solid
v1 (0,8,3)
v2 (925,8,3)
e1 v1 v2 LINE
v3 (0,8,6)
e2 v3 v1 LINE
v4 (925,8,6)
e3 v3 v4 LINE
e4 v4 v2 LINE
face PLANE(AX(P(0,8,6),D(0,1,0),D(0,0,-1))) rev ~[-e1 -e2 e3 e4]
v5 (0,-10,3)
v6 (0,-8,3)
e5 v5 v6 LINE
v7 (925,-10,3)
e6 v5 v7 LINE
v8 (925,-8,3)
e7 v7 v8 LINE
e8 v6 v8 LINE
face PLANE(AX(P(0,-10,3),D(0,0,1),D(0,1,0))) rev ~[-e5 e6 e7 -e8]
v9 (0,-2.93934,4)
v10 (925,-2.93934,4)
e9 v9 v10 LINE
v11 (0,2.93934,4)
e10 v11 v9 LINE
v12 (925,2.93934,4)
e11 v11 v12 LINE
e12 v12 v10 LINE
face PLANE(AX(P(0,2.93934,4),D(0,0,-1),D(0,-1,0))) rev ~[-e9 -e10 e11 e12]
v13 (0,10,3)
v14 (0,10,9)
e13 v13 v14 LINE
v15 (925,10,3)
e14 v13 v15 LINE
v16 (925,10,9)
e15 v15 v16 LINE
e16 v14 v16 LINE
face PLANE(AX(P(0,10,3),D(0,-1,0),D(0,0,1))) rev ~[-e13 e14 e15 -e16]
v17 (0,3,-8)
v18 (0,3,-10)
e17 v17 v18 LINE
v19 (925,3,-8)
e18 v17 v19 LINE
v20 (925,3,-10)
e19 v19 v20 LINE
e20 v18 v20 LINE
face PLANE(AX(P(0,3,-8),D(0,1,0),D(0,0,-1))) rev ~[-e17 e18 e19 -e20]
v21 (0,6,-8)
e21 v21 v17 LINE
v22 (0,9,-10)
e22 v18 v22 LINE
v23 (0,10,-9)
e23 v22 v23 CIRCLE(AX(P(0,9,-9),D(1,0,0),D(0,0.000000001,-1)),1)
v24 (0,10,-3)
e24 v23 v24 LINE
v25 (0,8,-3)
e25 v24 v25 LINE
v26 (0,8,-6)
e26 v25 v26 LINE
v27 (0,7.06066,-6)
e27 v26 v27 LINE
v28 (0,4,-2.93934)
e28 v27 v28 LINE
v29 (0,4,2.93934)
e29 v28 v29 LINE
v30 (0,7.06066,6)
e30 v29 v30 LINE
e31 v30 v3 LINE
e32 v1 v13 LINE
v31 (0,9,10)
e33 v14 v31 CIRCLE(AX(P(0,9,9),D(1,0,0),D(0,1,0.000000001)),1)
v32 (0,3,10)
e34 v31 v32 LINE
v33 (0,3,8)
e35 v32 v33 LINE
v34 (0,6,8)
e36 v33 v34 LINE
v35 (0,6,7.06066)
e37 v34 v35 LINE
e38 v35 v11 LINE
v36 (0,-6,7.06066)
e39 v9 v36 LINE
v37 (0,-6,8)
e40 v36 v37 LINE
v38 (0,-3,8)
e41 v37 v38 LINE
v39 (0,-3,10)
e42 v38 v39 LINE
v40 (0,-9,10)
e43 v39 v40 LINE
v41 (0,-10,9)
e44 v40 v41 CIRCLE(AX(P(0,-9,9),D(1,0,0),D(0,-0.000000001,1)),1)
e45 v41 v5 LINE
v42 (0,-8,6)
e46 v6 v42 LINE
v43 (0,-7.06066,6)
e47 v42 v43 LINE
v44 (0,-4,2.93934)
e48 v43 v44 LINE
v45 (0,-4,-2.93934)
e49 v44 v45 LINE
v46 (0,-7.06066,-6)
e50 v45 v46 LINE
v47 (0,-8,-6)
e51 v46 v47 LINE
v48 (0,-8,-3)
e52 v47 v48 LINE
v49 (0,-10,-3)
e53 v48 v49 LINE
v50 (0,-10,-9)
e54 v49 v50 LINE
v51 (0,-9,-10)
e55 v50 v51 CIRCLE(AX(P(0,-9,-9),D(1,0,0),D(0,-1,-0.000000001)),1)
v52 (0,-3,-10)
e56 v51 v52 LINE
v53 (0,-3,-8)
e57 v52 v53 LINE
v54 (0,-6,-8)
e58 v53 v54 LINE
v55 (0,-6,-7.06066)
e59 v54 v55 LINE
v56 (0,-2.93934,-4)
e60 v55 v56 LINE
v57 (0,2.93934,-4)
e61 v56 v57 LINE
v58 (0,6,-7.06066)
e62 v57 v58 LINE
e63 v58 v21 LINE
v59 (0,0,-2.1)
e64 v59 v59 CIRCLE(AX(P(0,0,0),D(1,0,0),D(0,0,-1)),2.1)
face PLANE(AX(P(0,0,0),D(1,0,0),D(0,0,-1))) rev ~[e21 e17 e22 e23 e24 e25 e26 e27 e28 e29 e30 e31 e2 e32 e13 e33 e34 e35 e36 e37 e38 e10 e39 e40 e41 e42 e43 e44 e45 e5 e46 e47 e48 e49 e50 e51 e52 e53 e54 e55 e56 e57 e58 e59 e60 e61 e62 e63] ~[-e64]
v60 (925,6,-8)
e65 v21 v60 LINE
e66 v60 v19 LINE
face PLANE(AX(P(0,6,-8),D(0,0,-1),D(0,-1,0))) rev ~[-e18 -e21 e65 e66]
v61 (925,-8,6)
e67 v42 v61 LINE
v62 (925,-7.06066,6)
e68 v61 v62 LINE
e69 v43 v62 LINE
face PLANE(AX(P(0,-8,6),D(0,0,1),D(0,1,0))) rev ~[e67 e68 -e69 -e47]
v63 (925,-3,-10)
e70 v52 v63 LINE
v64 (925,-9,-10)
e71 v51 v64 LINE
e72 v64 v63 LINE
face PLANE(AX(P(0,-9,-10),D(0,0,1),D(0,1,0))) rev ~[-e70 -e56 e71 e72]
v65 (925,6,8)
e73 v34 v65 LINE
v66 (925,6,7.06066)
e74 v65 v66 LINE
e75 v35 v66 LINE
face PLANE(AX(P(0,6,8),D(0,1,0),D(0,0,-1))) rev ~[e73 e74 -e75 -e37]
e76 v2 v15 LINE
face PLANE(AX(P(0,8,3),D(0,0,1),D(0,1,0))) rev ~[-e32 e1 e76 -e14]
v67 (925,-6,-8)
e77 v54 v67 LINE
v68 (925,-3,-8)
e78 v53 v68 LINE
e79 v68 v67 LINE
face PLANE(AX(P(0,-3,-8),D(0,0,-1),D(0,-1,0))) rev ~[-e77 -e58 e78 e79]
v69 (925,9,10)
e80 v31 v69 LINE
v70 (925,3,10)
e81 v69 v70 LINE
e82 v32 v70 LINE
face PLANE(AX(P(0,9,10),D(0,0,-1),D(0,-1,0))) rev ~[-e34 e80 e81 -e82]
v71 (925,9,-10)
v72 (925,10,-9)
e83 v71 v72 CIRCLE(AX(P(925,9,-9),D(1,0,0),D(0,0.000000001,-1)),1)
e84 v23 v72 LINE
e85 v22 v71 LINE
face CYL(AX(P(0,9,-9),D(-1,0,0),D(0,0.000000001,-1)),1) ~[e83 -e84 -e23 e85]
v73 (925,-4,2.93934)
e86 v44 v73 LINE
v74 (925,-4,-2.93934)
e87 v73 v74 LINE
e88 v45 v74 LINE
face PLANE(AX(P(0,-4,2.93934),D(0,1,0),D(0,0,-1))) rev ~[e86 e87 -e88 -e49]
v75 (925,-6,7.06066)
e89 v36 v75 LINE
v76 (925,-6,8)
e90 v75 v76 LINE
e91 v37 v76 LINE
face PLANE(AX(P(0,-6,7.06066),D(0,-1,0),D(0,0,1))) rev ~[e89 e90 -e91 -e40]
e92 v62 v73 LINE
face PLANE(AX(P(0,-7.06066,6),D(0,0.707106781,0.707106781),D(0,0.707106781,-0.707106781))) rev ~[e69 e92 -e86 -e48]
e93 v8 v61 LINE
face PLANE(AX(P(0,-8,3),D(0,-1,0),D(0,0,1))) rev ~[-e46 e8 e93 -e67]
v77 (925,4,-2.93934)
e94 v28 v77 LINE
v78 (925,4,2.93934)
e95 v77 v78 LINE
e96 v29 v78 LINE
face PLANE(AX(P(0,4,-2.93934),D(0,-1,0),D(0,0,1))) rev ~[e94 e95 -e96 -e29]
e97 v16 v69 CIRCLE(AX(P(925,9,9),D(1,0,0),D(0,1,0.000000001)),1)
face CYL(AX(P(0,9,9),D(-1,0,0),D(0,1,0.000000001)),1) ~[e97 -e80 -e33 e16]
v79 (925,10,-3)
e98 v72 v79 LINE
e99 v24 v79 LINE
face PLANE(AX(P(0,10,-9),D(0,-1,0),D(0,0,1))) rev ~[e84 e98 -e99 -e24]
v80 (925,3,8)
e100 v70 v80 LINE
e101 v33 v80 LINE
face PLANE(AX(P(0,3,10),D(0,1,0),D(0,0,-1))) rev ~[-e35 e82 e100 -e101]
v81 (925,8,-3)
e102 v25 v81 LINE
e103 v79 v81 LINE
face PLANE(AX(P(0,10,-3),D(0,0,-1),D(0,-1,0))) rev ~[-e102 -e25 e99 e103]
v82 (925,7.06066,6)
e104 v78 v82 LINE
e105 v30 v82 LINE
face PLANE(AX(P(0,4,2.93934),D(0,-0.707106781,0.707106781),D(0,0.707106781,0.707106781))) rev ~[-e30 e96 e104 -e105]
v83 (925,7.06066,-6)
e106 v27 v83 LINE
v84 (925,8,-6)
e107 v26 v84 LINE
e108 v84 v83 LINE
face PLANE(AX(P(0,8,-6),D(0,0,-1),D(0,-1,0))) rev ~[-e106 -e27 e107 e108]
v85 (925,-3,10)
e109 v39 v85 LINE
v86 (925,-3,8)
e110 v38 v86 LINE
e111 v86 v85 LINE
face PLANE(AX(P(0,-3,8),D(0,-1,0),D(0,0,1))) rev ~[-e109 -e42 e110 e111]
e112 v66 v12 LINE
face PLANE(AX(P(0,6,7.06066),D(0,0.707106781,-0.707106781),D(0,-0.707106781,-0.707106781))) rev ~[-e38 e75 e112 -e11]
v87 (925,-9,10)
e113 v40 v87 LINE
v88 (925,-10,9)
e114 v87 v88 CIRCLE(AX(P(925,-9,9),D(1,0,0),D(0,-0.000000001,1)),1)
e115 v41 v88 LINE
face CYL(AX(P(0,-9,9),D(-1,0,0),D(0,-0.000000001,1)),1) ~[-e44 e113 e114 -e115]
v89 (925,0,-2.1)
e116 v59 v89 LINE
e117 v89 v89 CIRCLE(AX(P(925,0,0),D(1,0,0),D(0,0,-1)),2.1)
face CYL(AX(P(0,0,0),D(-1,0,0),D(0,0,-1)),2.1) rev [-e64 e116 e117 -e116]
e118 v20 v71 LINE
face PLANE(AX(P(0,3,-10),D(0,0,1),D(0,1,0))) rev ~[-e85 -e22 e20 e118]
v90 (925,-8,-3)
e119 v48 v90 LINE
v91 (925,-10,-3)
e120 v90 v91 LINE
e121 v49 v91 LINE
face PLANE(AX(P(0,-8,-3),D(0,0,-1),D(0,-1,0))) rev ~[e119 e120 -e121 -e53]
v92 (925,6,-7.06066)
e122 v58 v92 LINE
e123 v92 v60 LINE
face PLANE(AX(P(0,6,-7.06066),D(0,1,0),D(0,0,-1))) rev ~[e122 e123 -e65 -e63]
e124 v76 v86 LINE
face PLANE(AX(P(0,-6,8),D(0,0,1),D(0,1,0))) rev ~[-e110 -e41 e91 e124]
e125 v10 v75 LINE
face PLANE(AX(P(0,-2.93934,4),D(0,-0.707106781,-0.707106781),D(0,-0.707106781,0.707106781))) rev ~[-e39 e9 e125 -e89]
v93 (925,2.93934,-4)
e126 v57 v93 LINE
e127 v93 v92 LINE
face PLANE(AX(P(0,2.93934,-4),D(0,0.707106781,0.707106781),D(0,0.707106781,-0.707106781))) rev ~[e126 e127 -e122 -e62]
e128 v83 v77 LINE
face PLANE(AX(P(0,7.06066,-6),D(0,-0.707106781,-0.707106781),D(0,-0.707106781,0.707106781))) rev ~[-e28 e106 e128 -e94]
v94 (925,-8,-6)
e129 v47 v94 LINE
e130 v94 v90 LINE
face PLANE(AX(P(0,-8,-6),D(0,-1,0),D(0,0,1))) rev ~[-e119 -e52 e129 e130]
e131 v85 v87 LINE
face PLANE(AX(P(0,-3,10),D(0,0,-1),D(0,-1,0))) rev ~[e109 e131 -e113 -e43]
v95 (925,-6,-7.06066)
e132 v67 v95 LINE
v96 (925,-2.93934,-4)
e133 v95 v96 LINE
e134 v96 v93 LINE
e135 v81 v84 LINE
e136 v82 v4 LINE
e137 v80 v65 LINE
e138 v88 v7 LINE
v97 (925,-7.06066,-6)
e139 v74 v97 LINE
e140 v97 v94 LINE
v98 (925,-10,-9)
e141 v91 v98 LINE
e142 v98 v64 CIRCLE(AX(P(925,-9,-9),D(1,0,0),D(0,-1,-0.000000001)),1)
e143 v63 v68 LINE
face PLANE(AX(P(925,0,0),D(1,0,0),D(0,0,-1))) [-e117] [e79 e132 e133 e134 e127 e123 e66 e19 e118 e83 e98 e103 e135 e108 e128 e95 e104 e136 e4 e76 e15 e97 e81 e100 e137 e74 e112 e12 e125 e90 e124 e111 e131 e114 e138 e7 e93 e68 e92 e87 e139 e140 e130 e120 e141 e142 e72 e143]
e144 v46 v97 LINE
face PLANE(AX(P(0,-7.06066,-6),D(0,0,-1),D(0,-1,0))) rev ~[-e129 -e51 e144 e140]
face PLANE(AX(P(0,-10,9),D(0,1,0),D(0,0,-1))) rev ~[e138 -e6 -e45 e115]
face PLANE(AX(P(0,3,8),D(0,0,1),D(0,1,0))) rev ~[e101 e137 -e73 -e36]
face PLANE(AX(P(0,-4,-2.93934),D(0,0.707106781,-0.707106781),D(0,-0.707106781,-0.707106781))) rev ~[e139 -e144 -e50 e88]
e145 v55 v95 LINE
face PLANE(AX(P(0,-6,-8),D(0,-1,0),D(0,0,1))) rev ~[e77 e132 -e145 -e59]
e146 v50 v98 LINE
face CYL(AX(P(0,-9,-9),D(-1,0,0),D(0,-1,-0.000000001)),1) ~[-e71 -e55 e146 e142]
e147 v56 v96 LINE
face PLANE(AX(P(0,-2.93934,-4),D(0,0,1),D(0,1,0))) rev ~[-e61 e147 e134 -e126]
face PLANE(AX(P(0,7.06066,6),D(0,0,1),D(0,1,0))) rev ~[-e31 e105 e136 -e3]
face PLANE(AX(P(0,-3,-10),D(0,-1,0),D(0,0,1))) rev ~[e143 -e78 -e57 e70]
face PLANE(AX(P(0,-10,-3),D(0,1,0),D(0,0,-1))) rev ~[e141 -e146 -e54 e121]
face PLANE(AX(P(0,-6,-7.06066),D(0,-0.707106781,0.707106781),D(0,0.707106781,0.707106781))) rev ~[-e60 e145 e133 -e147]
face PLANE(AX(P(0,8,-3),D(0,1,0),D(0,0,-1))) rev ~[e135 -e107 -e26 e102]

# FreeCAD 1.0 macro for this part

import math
import FreeCAD as App
import Part
import Sketcher

V = App.Vector
Q = App.Units.Quantity

doc = App.newDocument("Part")
params = doc.addObject("Spreadsheet::Sheet", "Params")
for row, (alias, value) in enumerate([
    ("sketch1_radius", "1 mm"),
    ("sketch1_diameter", "4.2 mm"),
    ("sketch1_width", "6 mm"),
    ("sketch1_width2", "3 mm"),
    ("sketch1_width3", "2 mm"),
    ("pad1_length", "925 mm"),
], start=1):
    params.set(f"A{row}", alias)
    params.set(f"B{row}", "=" + value)
    params.setAlias(f"B{row}", alias)

body = doc.addObject("PartDesign::Body", "Body")

sketch1 = doc.addObject("Sketcher::SketchObject", "Sketch")
body.addObject(sketch1)
sketch1.AttachmentSupport = (doc.YZ_Plane, [""])
sketch1.MapMode = "FlatFace"
sketch1.addGeometry(Part.LineSegment(V(9, 10, 0), V(3, 10, 0)), False)
sketch1.addGeometry(Part.LineSegment(V(3, 10, 0), V(3, 8, 0)), False)
sketch1.addGeometry(Part.LineSegment(V(3, 8, 0), V(6, 8, 0)), False)
sketch1.addGeometry(Part.LineSegment(V(6, 8, 0), V(6, 7.1, 0)), False)
sketch1.addGeometry(Part.LineSegment(V(6, 7.1, 0), V(2.9, 4, 0)), False)
sketch1.addGeometry(Part.LineSegment(V(2.9, 4, 0), V(-2.9, 4, 0)), False)
sketch1.addGeometry(Part.LineSegment(V(-2.9, 4, 0), V(-6, 7.1, 0)), False)
sketch1.addGeometry(Part.LineSegment(V(-6, 7.1, 0), V(-6, 8, 0)), False)
sketch1.addGeometry(Part.LineSegment(V(-6, 8, 0), V(-3, 8, 0)), False)
sketch1.addGeometry(Part.LineSegment(V(-3, 8, 0), V(-3, 10, 0)), False)
sketch1.addGeometry(Part.LineSegment(V(-3, 10, 0), V(-9, 10, 0)), False)
sketch1.addGeometry(Part.ArcOfCircle(Part.Circle(V(-9, 9, 0), V(0, 0, 1), 1), math.radians(90), math.radians(180)), False)
sketch1.addGeometry(Part.LineSegment(V(-10, 9, 0), V(-10, 3, 0)), False)
sketch1.addGeometry(Part.LineSegment(V(-10, 3, 0), V(-8, 3, 0)), False)
sketch1.addGeometry(Part.LineSegment(V(-8, 3, 0), V(-8, 6, 0)), False)
sketch1.addGeometry(Part.LineSegment(V(-8, 6, 0), V(-7.1, 6, 0)), False)
sketch1.addGeometry(Part.LineSegment(V(-7.1, 6, 0), V(-4, 2.9, 0)), False)
sketch1.addGeometry(Part.LineSegment(V(-4, 2.9, 0), V(-4, -2.9, 0)), False)
sketch1.addGeometry(Part.LineSegment(V(-4, -2.9, 0), V(-7.1, -6, 0)), False)
sketch1.addGeometry(Part.LineSegment(V(-7.1, -6, 0), V(-8, -6, 0)), False)
sketch1.addGeometry(Part.LineSegment(V(-8, -6, 0), V(-8, -3, 0)), False)
sketch1.addGeometry(Part.LineSegment(V(-8, -3, 0), V(-10, -3, 0)), False)
sketch1.addGeometry(Part.LineSegment(V(-10, -3, 0), V(-10, -9, 0)), False)
sketch1.addGeometry(Part.ArcOfCircle(Part.Circle(V(-9, -9, 0), V(0, 0, 1), 1), math.radians(-180), math.radians(-90)), False)
sketch1.addGeometry(Part.LineSegment(V(-9, -10, 0), V(-3, -10, 0)), False)
sketch1.addGeometry(Part.LineSegment(V(-3, -10, 0), V(-3, -8, 0)), False)
sketch1.addGeometry(Part.LineSegment(V(-3, -8, 0), V(-6, -8, 0)), False)
sketch1.addGeometry(Part.LineSegment(V(-6, -8, 0), V(-6, -7.1, 0)), False)
sketch1.addGeometry(Part.LineSegment(V(-6, -7.1, 0), V(-2.9, -4, 0)), False)
sketch1.addGeometry(Part.LineSegment(V(-2.9, -4, 0), V(2.9, -4, 0)), False)
sketch1.addGeometry(Part.LineSegment(V(2.9, -4, 0), V(6, -7.1, 0)), False)
sketch1.addGeometry(Part.LineSegment(V(6, -7.1, 0), V(6, -8, 0)), False)
sketch1.addGeometry(Part.LineSegment(V(6, -8, 0), V(3, -8, 0)), False)
sketch1.addGeometry(Part.LineSegment(V(3, -8, 0), V(3, -10, 0)), False)
sketch1.addGeometry(Part.LineSegment(V(3, -10, 0), V(9, -10, 0)), False)
sketch1.addGeometry(Part.ArcOfCircle(Part.Circle(V(9, -9, 0), V(0, 0, 1), 1), math.radians(-90), math.radians(0)), False)
sketch1.addGeometry(Part.LineSegment(V(10, -9, 0), V(10, -3, 0)), False)
sketch1.addGeometry(Part.LineSegment(V(10, -3, 0), V(8, -3, 0)), False)
sketch1.addGeometry(Part.LineSegment(V(8, -3, 0), V(8, -6, 0)), False)
sketch1.addGeometry(Part.LineSegment(V(8, -6, 0), V(7.1, -6, 0)), False)
sketch1.addGeometry(Part.LineSegment(V(7.1, -6, 0), V(4, -2.9, 0)), False)
sketch1.addGeometry(Part.LineSegment(V(4, -2.9, 0), V(4, 2.9, 0)), False)
sketch1.addGeometry(Part.LineSegment(V(4, 2.9, 0), V(7.1, 6, 0)), False)
sketch1.addGeometry(Part.LineSegment(V(7.1, 6, 0), V(8, 6, 0)), False)
sketch1.addGeometry(Part.LineSegment(V(8, 6, 0), V(8, 3, 0)), False)
sketch1.addGeometry(Part.LineSegment(V(8, 3, 0), V(10, 3, 0)), False)
sketch1.addGeometry(Part.LineSegment(V(10, 3, 0), V(10, 9, 0)), False)
sketch1.addGeometry(Part.ArcOfCircle(Part.Circle(V(9, 9, 0), V(0, 0, 1), 1), math.radians(0), math.radians(90)), False)
sketch1.addGeometry(Part.Circle(V(0, 0, 0), V(0, 0, 1), 2.1), False)
sketch1.addConstraint(Sketcher.Constraint("Coincident", 0, 2, 1, 1))
sketch1.addConstraint(Sketcher.Constraint("Coincident", 1, 2, 2, 1))
sketch1.addConstraint(Sketcher.Constraint("Coincident", 2, 2, 3, 1))
sketch1.addConstraint(Sketcher.Constraint("Coincident", 3, 2, 4, 1))
sketch1.addConstraint(Sketcher.Constraint("Coincident", 4, 2, 5, 1))
sketch1.addConstraint(Sketcher.Constraint("Coincident", 5, 2, 6, 1))
sketch1.addConstraint(Sketcher.Constraint("Coincident", 6, 2, 7, 1))
sketch1.addConstraint(Sketcher.Constraint("Coincident", 7, 2, 8, 1))
sketch1.addConstraint(Sketcher.Constraint("Coincident", 8, 2, 9, 1))
sketch1.addConstraint(Sketcher.Constraint("Coincident", 9, 2, 10, 1))
sketch1.addConstraint(Sketcher.Constraint("Tangent", 10, 2, 11, 1))
sketch1.addConstraint(Sketcher.Constraint("Tangent", 11, 2, 12, 1))
sketch1.addConstraint(Sketcher.Constraint("Coincident", 12, 2, 13, 1))
sketch1.addConstraint(Sketcher.Constraint("Coincident", 13, 2, 14, 1))
sketch1.addConstraint(Sketcher.Constraint("Coincident", 14, 2, 15, 1))
sketch1.addConstraint(Sketcher.Constraint("Coincident", 15, 2, 16, 1))
sketch1.addConstraint(Sketcher.Constraint("Coincident", 16, 2, 17, 1))
sketch1.addConstraint(Sketcher.Constraint("Coincident", 17, 2, 18, 1))
sketch1.addConstraint(Sketcher.Constraint("Coincident", 18, 2, 19, 1))
sketch1.addConstraint(Sketcher.Constraint("Coincident", 19, 2, 20, 1))
sketch1.addConstraint(Sketcher.Constraint("Coincident", 20, 2, 21, 1))
sketch1.addConstraint(Sketcher.Constraint("Coincident", 21, 2, 22, 1))
sketch1.addConstraint(Sketcher.Constraint("Tangent", 22, 2, 23, 1))
sketch1.addConstraint(Sketcher.Constraint("Tangent", 23, 2, 24, 1))
sketch1.addConstraint(Sketcher.Constraint("Coincident", 24, 2, 25, 1))
sketch1.addConstraint(Sketcher.Constraint("Coincident", 25, 2, 26, 1))
sketch1.addConstraint(Sketcher.Constraint("Coincident", 26, 2, 27, 1))
sketch1.addConstraint(Sketcher.Constraint("Coincident", 27, 2, 28, 1))
sketch1.addConstraint(Sketcher.Constraint("Coincident", 28, 2, 29, 1))
sketch1.addConstraint(Sketcher.Constraint("Coincident", 29, 2, 30, 1))
sketch1.addConstraint(Sketcher.Constraint("Coincident", 30, 2, 31, 1))
sketch1.addConstraint(Sketcher.Constraint("Coincident", 31, 2, 32, 1))
sketch1.addConstraint(Sketcher.Constraint("Coincident", 32, 2, 33, 1))
sketch1.addConstraint(Sketcher.Constraint("Coincident", 33, 2, 34, 1))
sketch1.addConstraint(Sketcher.Constraint("Tangent", 34, 2, 35, 1))
sketch1.addConstraint(Sketcher.Constraint("Tangent", 35, 2, 36, 1))
sketch1.addConstraint(Sketcher.Constraint("Coincident", 36, 2, 37, 1))
sketch1.addConstraint(Sketcher.Constraint("Coincident", 37, 2, 38, 1))
sketch1.addConstraint(Sketcher.Constraint("Coincident", 38, 2, 39, 1))
sketch1.addConstraint(Sketcher.Constraint("Coincident", 39, 2, 40, 1))
sketch1.addConstraint(Sketcher.Constraint("Coincident", 40, 2, 41, 1))
sketch1.addConstraint(Sketcher.Constraint("Coincident", 41, 2, 42, 1))
sketch1.addConstraint(Sketcher.Constraint("Coincident", 42, 2, 43, 1))
sketch1.addConstraint(Sketcher.Constraint("Coincident", 43, 2, 44, 1))
sketch1.addConstraint(Sketcher.Constraint("Coincident", 44, 2, 45, 1))
sketch1.addConstraint(Sketcher.Constraint("Coincident", 45, 2, 46, 1))
sketch1.addConstraint(Sketcher.Constraint("Tangent", 46, 2, 47, 1))
sketch1.addConstraint(Sketcher.Constraint("Tangent", 47, 2, 0, 1))
sketch1.addConstraint(Sketcher.Constraint("Horizontal", 0))
sketch1.addConstraint(Sketcher.Constraint("Vertical", 1))
sketch1.addConstraint(Sketcher.Constraint("Horizontal", 2))
sketch1.addConstraint(Sketcher.Constraint("Vertical", 3))
sketch1.addConstraint(Sketcher.Constraint("Horizontal", 5))
sketch1.addConstraint(Sketcher.Constraint("Vertical", 7))
sketch1.addConstraint(Sketcher.Constraint("Horizontal", 8))
sketch1.addConstraint(Sketcher.Constraint("Vertical", 9))
sketch1.addConstraint(Sketcher.Constraint("Horizontal", 10))
sketch1.addConstraint(Sketcher.Constraint("Vertical", 12))
sketch1.addConstraint(Sketcher.Constraint("Horizontal", 13))
sketch1.addConstraint(Sketcher.Constraint("Vertical", 14))
sketch1.addConstraint(Sketcher.Constraint("Horizontal", 15))
sketch1.addConstraint(Sketcher.Constraint("Vertical", 17))
sketch1.addConstraint(Sketcher.Constraint("Horizontal", 19))
sketch1.addConstraint(Sketcher.Constraint("Vertical", 20))
sketch1.addConstraint(Sketcher.Constraint("Horizontal", 21))
sketch1.addConstraint(Sketcher.Constraint("Vertical", 22))
sketch1.addConstraint(Sketcher.Constraint("Horizontal", 24))
sketch1.addConstraint(Sketcher.Constraint("Vertical", 25))
sketch1.addConstraint(Sketcher.Constraint("Horizontal", 26))
sketch1.addConstraint(Sketcher.Constraint("Vertical", 27))
sketch1.addConstraint(Sketcher.Constraint("Horizontal", 29))
sketch1.addConstraint(Sketcher.Constraint("Vertical", 31))
sketch1.addConstraint(Sketcher.Constraint("Horizontal", 32))
sketch1.addConstraint(Sketcher.Constraint("Vertical", 33))
sketch1.addConstraint(Sketcher.Constraint("Horizontal", 34))
sketch1.addConstraint(Sketcher.Constraint("Vertical", 36))
sketch1.addConstraint(Sketcher.Constraint("Horizontal", 37))
sketch1.addConstraint(Sketcher.Constraint("Vertical", 38))
sketch1.addConstraint(Sketcher.Constraint("Horizontal", 39))
sketch1.addConstraint(Sketcher.Constraint("Vertical", 41))
sketch1.addConstraint(Sketcher.Constraint("Horizontal", 43))
sketch1.addConstraint(Sketcher.Constraint("Vertical", 44))
sketch1.addConstraint(Sketcher.Constraint("Horizontal", 45))
sketch1.addConstraint(Sketcher.Constraint("Vertical", 46))
sketch1.addConstraint(Sketcher.Constraint("Coincident", 48, 3, -1, 1))
sketch1.addConstraint(Sketcher.Constraint("Equal", 11, 23))
sketch1.addConstraint(Sketcher.Constraint("Equal", 23, 35))
sketch1.addConstraint(Sketcher.Constraint("Equal", 35, 47))
sketch1.addConstraint(Sketcher.Constraint("Symmetric", 11, 3, 35, 3, -1, 1))
sketch1.addConstraint(Sketcher.Constraint("Symmetric", 23, 3, 47, 3, -1, 1))
sketch1.addConstraint(Sketcher.Constraint("Symmetric", 1, 2, 25, 2, -1, 1))
sketch1.addConstraint(Sketcher.Constraint("Symmetric", 3, 2, 27, 2, -1, 1))
sketch1.addConstraint(Sketcher.Constraint("Symmetric", 4, 2, 28, 2, -1, 1))
sketch1.addConstraint(Sketcher.Constraint("Symmetric", 6, 2, 30, 2, -1, 1))
sketch1.addConstraint(Sketcher.Constraint("Symmetric", 8, 2, 32, 2, -1, 1))
sketch1.addConstraint(Sketcher.Constraint("Symmetric", 13, 2, 37, 2, -1, 1))
sketch1.addConstraint(Sketcher.Constraint("Symmetric", 15, 2, 39, 2, -1, 1))
sketch1.addConstraint(Sketcher.Constraint("Symmetric", 16, 2, 40, 2, -1, 1))
sketch1.addConstraint(Sketcher.Constraint("Symmetric", 18, 2, 42, 2, -1, 1))
sketch1.addConstraint(Sketcher.Constraint("Symmetric", 20, 2, 44, 2, -1, 1))
sketch1.addConstraint(Sketcher.Constraint("Symmetric", 23, 3, 35, 3, -2))
sketch1.addConstraint(Sketcher.Constraint("Symmetric", 3, 2, 6, 2, -2))
sketch1.addConstraint(Sketcher.Constraint("Symmetric", 1, 2, 8, 2, -2))
sketch1.addConstraint(Sketcher.Constraint("Symmetric", 20, 2, 37, 2, -2))
sketch1.addConstraint(Sketcher.Constraint("Symmetric", 18, 2, 39, 2, -2))
sketch1.addConstraint(Sketcher.Constraint("Perpendicular", 4, 6))
sketch1.addConstraint(Sketcher.Constraint("Parallel", 6, 16))
sketch1.addConstraint(Sketcher.Constraint("Perpendicular", 16, 18))
sketch1.addConstraint(Sketcher.Constraint("Perpendicular", 28, 30))
sketch1.addConstraint(Sketcher.Constraint("Perpendicular", 40, 42))
sketch1.addConstraint(Sketcher.Constraint("Horizontal", 17, 2, 40, 2))
sketch1.addConstraint(Sketcher.Constraint("Equal", 45, 1))
sketch1.addConstraint(Sketcher.Constraint("Equal", 43, 3))
sketch1.addConstraint(Sketcher.Constraint("Equal", 34, 12))
sketch1.addConstraint(Sketcher.Constraint("Equal", 32, 14))
sketch1.addConstraint(Sketcher.Constraint("Equal", 29, 17))
sketch1.addConstraint(Sketcher.Constraint("Equal", 6, 16))
sketch1.addConstraint(Sketcher.Constraint("Radius", 11, Q("1 mm")))
sketch1.addConstraint(Sketcher.Constraint("Diameter", 48, Q("4.2 mm")))
sketch1.addConstraint(Sketcher.Constraint("DistanceX", 0, 2, 0, 1, Q("6 mm")))
sketch1.addConstraint(Sketcher.Constraint("DistanceX", 2, 1, 2, 2, Q("3 mm")))
sketch1.addConstraint(Sketcher.Constraint("DistanceX", 13, 1, 13, 2, Q("2 mm")))
sketch1.addConstraint(Sketcher.Constraint("DistanceX", 11, 3, -1, 1, Q("9 mm")))
sketch1.addConstraint(Sketcher.Constraint("DistanceY", -1, 1, 4, 2, Q("4 mm")))
sketch1.addConstraint(Sketcher.Constraint("DistanceX", 5, 2, 5, 1, Q("5.87868 mm")))
sketch1.setExpression("Constraints[117]", "Params.sketch1_radius")
sketch1.setExpression("Constraints[118]", "Params.sketch1_diameter")
sketch1.setExpression("Constraints[119]", "Params.sketch1_width")
sketch1.setExpression("Constraints[120]", "Params.sketch1_width2")
sketch1.setExpression("Constraints[121]", "Params.sketch1_width3")
pad1 = doc.addObject("PartDesign::Pad", "Pad")
body.addObject(pad1)
pad1.Profile = sketch1
pad1.setExpression("Length", "Params.pad1_length")

doc.recompute()
